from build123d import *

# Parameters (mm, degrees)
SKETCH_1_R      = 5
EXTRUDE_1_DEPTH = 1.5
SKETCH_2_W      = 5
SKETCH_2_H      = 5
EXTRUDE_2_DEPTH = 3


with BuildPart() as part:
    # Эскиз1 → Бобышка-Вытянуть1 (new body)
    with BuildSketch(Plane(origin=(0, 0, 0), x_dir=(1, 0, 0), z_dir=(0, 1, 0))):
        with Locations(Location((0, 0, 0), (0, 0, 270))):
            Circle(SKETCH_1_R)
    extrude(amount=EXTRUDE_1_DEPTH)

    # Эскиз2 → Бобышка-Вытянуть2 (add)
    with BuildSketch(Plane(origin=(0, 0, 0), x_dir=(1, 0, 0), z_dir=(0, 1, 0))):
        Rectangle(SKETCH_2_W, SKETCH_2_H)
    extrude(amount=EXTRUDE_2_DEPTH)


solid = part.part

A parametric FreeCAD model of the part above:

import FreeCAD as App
import Part
import Sketcher
Q = App.Units.Quantity


def add_polygon(sketch, points):
    """Adds a closed chain of lines whose ends are joined by coincident constraints."""
    first, n = sketch.GeometryCount, len(points)
    for a, b in zip(points, points[1:] + points[:1]):
        sketch.addGeometry(Part.LineSegment(App.Vector(*a, 0), App.Vector(*b, 0)), False)
    for i in range(n):
        sketch.addConstraint(Sketcher.Constraint("Coincident", first + i, 2, first + (i + 1) % n, 1))

doc = App.newDocument("Part")
body = doc.addObject("PartDesign::Body", "Body")

# Sketch on XZ plane
sketch1 = body.newObject("Sketcher::SketchObject", "Sketch")
sketch1.AttachmentSupport = (doc.getObject("XZ_Plane"), [""])
sketch1.MapMode = "FlatFace"
sketch1.addGeometry(Part.Circle(App.Vector(0, 0, 0), App.Vector(0, 0, 1), 5), False)
sketch1.addConstraint(Sketcher.Constraint("Coincident", 0, 3, -1, 1))
sketch1.addConstraint(Sketcher.Constraint("Diameter", 0, Q("10 mm")))
pad1 = body.newObject("PartDesign::Pad", "Pad")
pad1.Profile = sketch1
pad1.Length = 1.5
pad1.Reversed = True

# Sketch on XZ plane
sketch2 = body.newObject("Sketcher::SketchObject", "Sketch001")
sketch2.AttachmentSupport = (doc.getObject("XZ_Plane"), [""])
sketch2.MapMode = "FlatFace"
add_polygon(sketch2, [(-2, -2), (-2, 2), (2, 2), (2, -2)])  # lines 0-3
sketch2.addConstraint(Sketcher.Constraint("Vertical", 0))
sketch2.addConstraint(Sketcher.Constraint("Horizontal", 1))
sketch2.addConstraint(Sketcher.Constraint("Vertical", 2))
sketch2.addConstraint(Sketcher.Constraint("Horizontal", 3))
sketch2.addConstraint(Sketcher.Constraint("Symmetric", 0, 2, 2, 2, -1, 1))
sketch2.addConstraint(Sketcher.Constraint("Equal", 3, 0))
sketch2.addConstraint(Sketcher.Constraint("DistanceX", 1, 1, 1, 2, Q("5 mm")))
pad2 = body.newObject("PartDesign::Pad", "Pad001")
pad2.Profile = sketch2
pad2.Length = 3
pad2.Reversed = True

doc.recompute()
